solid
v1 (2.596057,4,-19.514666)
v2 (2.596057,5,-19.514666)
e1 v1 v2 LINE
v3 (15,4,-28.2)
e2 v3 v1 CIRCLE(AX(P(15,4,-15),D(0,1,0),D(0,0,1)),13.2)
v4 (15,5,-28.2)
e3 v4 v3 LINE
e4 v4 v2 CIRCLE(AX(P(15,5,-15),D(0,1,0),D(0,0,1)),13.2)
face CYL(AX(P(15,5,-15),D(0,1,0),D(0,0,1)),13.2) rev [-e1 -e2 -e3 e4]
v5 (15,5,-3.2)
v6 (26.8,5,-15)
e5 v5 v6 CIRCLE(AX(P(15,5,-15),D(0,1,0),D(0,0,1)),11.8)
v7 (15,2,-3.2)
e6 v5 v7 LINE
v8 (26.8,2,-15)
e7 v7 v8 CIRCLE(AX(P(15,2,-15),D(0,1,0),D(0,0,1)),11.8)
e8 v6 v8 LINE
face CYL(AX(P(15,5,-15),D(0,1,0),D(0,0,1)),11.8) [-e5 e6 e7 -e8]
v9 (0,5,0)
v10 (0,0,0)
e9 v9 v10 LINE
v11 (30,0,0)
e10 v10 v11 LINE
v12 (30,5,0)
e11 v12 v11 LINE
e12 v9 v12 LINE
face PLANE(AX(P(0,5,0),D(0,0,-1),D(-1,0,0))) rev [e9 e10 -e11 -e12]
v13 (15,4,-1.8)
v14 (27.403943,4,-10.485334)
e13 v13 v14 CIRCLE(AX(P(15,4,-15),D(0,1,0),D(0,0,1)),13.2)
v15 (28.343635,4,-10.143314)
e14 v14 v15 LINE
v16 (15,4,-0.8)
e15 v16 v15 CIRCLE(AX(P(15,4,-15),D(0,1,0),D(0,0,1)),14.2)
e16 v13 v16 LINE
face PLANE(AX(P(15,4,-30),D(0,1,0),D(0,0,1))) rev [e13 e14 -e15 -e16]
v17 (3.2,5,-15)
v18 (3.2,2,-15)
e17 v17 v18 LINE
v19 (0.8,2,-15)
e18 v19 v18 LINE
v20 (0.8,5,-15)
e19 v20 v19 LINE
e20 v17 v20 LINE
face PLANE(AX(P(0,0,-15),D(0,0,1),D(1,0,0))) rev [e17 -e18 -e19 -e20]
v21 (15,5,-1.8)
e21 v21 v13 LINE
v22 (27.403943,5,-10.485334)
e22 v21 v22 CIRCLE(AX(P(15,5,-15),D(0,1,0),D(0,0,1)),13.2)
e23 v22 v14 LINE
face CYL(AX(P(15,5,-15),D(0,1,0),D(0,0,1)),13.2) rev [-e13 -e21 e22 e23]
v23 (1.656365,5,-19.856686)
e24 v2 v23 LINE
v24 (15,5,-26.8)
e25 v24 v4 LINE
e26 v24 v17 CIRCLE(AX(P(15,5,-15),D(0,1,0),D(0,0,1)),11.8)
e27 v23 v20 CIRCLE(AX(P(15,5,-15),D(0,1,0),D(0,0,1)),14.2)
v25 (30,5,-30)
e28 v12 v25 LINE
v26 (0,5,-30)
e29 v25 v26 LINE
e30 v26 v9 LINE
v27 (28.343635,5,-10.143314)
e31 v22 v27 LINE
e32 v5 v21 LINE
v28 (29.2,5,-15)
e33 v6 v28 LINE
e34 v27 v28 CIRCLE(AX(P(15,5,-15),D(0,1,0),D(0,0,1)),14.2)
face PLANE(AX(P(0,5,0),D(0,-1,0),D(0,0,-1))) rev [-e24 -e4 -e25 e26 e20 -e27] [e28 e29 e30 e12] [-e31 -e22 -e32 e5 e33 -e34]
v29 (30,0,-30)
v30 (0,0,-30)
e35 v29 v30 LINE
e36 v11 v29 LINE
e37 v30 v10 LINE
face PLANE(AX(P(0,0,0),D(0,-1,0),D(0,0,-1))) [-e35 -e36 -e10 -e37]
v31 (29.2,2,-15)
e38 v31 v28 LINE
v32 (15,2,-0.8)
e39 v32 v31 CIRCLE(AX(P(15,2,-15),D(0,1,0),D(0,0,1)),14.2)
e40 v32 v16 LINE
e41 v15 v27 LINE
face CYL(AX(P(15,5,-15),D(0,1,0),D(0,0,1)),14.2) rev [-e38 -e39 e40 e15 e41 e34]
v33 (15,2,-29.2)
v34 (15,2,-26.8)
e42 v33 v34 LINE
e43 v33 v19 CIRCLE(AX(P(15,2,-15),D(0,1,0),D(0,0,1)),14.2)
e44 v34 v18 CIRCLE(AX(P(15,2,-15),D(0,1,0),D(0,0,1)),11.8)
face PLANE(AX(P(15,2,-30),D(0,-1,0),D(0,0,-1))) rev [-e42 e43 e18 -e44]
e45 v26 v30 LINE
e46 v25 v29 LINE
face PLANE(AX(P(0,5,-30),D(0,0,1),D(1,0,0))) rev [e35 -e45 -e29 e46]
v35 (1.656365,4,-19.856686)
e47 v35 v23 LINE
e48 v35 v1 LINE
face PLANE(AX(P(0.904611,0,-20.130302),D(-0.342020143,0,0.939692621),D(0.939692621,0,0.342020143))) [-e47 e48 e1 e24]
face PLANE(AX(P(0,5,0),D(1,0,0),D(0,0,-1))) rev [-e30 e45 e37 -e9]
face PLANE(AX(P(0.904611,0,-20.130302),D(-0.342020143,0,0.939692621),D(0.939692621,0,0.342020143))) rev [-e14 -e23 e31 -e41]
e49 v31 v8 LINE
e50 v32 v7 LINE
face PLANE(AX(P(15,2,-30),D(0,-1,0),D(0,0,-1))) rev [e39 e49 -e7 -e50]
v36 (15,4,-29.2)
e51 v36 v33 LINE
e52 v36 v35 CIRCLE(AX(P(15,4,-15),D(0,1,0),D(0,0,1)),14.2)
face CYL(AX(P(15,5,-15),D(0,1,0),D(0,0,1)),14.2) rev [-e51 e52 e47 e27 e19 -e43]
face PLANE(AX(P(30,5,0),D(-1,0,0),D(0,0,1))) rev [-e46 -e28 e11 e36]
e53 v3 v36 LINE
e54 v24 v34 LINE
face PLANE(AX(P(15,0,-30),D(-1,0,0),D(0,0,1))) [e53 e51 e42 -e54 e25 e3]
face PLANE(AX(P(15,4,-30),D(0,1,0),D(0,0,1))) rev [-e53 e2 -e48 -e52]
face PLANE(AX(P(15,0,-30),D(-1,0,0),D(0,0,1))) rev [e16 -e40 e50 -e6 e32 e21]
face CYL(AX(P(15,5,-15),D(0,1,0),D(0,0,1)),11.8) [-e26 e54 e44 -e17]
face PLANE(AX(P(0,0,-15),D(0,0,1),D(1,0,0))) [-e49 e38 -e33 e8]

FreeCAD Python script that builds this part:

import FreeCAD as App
import Part
import Sketcher
Q = App.Units.Quantity

doc = App.newDocument("Part")
body = doc.addObject("PartDesign::Body", "Body")

sketch1 = body.newObject("Sketcher::SketchObject", "Sketch")
sketch1.AttachmentSupport = (doc.getObject("XZ_Plane"), [""])
sketch1.MapMode = "FlatFace"
sketch1.addGeometry(Part.LineSegment(App.Vector(0, -30, 0), App.Vector(0, 0, 0)), False)
sketch1.addGeometry(Part.LineSegment(App.Vector(0, 0, 0), App.Vector(30, 0, 0)), False)
sketch1.addGeometry(Part.LineSegment(App.Vector(30, 0, 0), App.Vector(30, -30, 0)), False)
sketch1.addGeometry(Part.LineSegment(App.Vector(30, -30, 0), App.Vector(0, -30, 0)), False)
sketch1.addConstraint(Sketcher.Constraint("Coincident", 0, 2, 1, 1))
sketch1.addConstraint(Sketcher.Constraint("Coincident", 1, 2, 2, 1))
sketch1.addConstraint(Sketcher.Constraint("Coincident", 2, 2, 3, 1))
sketch1.addConstraint(Sketcher.Constraint("Coincident", 3, 2, 0, 1))
sketch1.addConstraint(Sketcher.Constraint("Vertical", 0))
sketch1.addConstraint(Sketcher.Constraint("Horizontal", 1))
sketch1.addConstraint(Sketcher.Constraint("Vertical", 2))
sketch1.addConstraint(Sketcher.Constraint("Horizontal", 3))
sketch1.addConstraint(Sketcher.Constraint("Coincident", 0, 2, -1, 1))
sketch1.addConstraint(Sketcher.Constraint("Equal", 3, 0))
sketch1.addConstraint(Sketcher.Constraint("DistanceX", 1, 1, 1, 2, Q("30 mm")))
pad1 = body.newObject("PartDesign::Pad", "Pad")
pad1.Profile = sketch1
pad1.Length = 5
pad1.Reversed = True

sketch2 = body.newObject("Sketcher::SketchObject", "Sketch001")
sketch2.AttachmentSupport = (doc.getObject("XY_Plane"), [""])
sketch2.MapMode = "FlatFace"
sketch2.AttachmentOffset = App.Placement(App.Vector(0, 0, -15), App.Rotation())
sketch2.addGeometry(Part.LineSegment(App.Vector(1.8, 4, 0), App.Vector(0.8, 4, 0)), False)
sketch2.addGeometry(Part.LineSegment(App.Vector(0.8, 4, 0), App.Vector(0.8, 2, 0)), False)
sketch2.addGeometry(Part.LineSegment(App.Vector(0.8, 2, 0), App.Vector(3.2, 2, 0)), False)
sketch2.addGeometry(Part.LineSegment(App.Vector(3.2, 2, 0), App.Vector(3.2, 5, 0)), False)
sketch2.addGeometry(Part.LineSegment(App.Vector(3.2, 5, 0), App.Vector(1.8, 5, 0)), False)
sketch2.addGeometry(Part.LineSegment(App.Vector(1.8, 5, 0), App.Vector(1.8, 4, 0)), False)
sketch2.addGeometry(Part.LineSegment(App.Vector(26.8, 2, 0), App.Vector(29.2, 2, 0)), False)
sketch2.addGeometry(Part.LineSegment(App.Vector(29.2, 2, 0), App.Vector(29.2, 4, 0)), False)
sketch2.addGeometry(Part.LineSegment(App.Vector(29.2, 4, 0), App.Vector(28.2, 4, 0)), False)
sketch2.addGeometry(Part.LineSegment(App.Vector(28.2, 4, 0), App.Vector(28.2, 5, 0)), False)
sketch2.addGeometry(Part.LineSegment(App.Vector(28.2, 5, 0), App.Vector(26.8, 5, 0)), False)
sketch2.addGeometry(Part.LineSegment(App.Vector(26.8, 5, 0), App.Vector(26.8, 2, 0)), False)
sketch2.addGeometry(Part.LineSegment(App.Vector(15, 5, 0), App.Vector(15, 2, 0)), True)
sketch2.addConstraint(Sketcher.Constraint("Coincident", 0, 2, 1, 1))
sketch2.addConstraint(Sketcher.Constraint("Coincident", 1, 2, 2, 1))
sketch2.addConstraint(Sketcher.Constraint("Coincident", 2, 2, 3, 1))
sketch2.addConstraint(Sketcher.Constraint("Coincident", 3, 2, 4, 1))
sketch2.addConstraint(Sketcher.Constraint("Coincident", 4, 2, 5, 1))
sketch2.addConstraint(Sketcher.Constraint("Coincident", 5, 2, 0, 1))
sketch2.addConstraint(Sketcher.Constraint("Coincident", 6, 2, 7, 1))
sketch2.addConstraint(Sketcher.Constraint("Coincident", 7, 2, 8, 1))
sketch2.addConstraint(Sketcher.Constraint("Coincident", 8, 2, 9, 1))
sketch2.addConstraint(Sketcher.Constraint("Coincident", 9, 2, 10, 1))
sketch2.addConstraint(Sketcher.Constraint("Coincident", 10, 2, 11, 1))
sketch2.addConstraint(Sketcher.Constraint("Coincident", 11, 2, 6, 1))
sketch2.addConstraint(Sketcher.Constraint("Horizontal", 0))
sketch2.addConstraint(Sketcher.Constraint("Vertical", 1))
sketch2.addConstraint(Sketcher.Constraint("Horizontal", 2))
sketch2.addConstraint(Sketcher.Constraint("Vertical", 3))
sketch2.addConstraint(Sketcher.Constraint("Horizontal", 4))
sketch2.addConstraint(Sketcher.Constraint("Vertical", 5))
sketch2.addConstraint(Sketcher.Constraint("Horizontal", 6))
sketch2.addConstraint(Sketcher.Constraint("Vertical", 7))
sketch2.addConstraint(Sketcher.Constraint("Horizontal", 8))
sketch2.addConstraint(Sketcher.Constraint("Vertical", 9))
sketch2.addConstraint(Sketcher.Constraint("Horizontal", 10))
sketch2.addConstraint(Sketcher.Constraint("Vertical", 11))
sketch2.addConstraint(Sketcher.Constraint("Vertical", 12))
sketch2.addConstraint(Sketcher.Constraint("Horizontal", 2, 2, 6, 2))
sketch2.addConstraint(Sketcher.Constraint("Horizontal", 5, 2, 7, 2))
sketch2.addConstraint(Sketcher.Constraint("Horizontal", 4, 2, 9, 2))
sketch2.addConstraint(Sketcher.Constraint("Horizontal", 10, 2, 12, 1))
sketch2.addConstraint(Sketcher.Constraint("Horizontal", 11, 2, 12, 2))
sketch2.addConstraint(Sketcher.Constraint("Equal", 2, 6))
sketch2.addConstraint(Sketcher.Constraint("Equal", 0, 8))
sketch2.addConstraint(Sketcher.Constraint("Equal", 8, 5))
sketch2.addConstraint(Sketcher.Constraint("DistanceX", 0, 2, 0, 1, Q("1 mm")))
sketch2.addConstraint(Sketcher.Constraint("DistanceY", 1, 2, 1, 1, Q("2 mm")))
sketch2.addConstraint(Sketcher.Constraint("DistanceX", 2, 1, 2, 2, Q("2.4 mm")))
sketch2.addConstraint(Sketcher.Constraint("DistanceY", -1, 1, 0, 2, Q("4 mm")))
sketch2.addConstraint(Sketcher.Constraint("DistanceX", -1, 1, 12, 1, Q("15 mm")))
sketch2.addConstraint(Sketcher.Constraint("DistanceX", 2, 2, 6, 2, Q("26 mm")))
sketch2.addConstraint(Sketcher.Constraint("DistanceX", -1, 1, 0, 2, Q("0.8 mm")))
groove = body.newObject("PartDesign::Groove", "Groove")
groove.Profile = sketch2
groove.ReferenceAxis = (sketch2, ["Axis0"])
groove.Angle = 90

sketch3 = body.newObject("Sketcher::SketchObject", "Sketch002")
sketch3.AttachmentSupport = (doc.getObject("XY_Plane"), [""])
sketch3.MapMode = "FlatFace"
sketch3.AttachmentOffset = App.Placement(App.Vector(0, 0, -15), App.Rotation())
sketch3.addGeometry(Part.LineSegment(App.Vector(0.8, 5, 0), App.Vector(0.8, 2, 0)), False)
sketch3.addGeometry(Part.LineSegment(App.Vector(0.8, 2, 0), App.Vector(3.2, 2, 0)), False)
sketch3.addGeometry(Part.LineSegment(App.Vector(3.2, 2, 0), App.Vector(3.2, 5, 0)), False)
sketch3.addGeometry(Part.LineSegment(App.Vector(3.2, 5, 0), App.Vector(0.8, 5, 0)), False)
sketch3.addGeometry(Part.LineSegment(App.Vector(26.8, 5, 0), App.Vector(26.8, 2, 0)), False)
sketch3.addGeometry(Part.LineSegment(App.Vector(26.8, 2, 0), App.Vector(29.2, 2, 0)), False)
sketch3.addGeometry(Part.LineSegment(App.Vector(29.2, 2, 0), App.Vector(29.2, 5, 0)), False)
sketch3.addGeometry(Part.LineSegment(App.Vector(29.2, 5, 0), App.Vector(26.8, 5, 0)), False)
sketch3.addGeometry(Part.LineSegment(App.Vector(15, 5, 0), App.Vector(15, 2, 0)), True)
sketch3.addConstraint(Sketcher.Constraint("Coincident", 0, 2, 1, 1))
sketch3.addConstraint(Sketcher.Constraint("Coincident", 1, 2, 2, 1))
sketch3.addConstraint(Sketcher.Constraint("Coincident", 2, 2, 3, 1))
sketch3.addConstraint(Sketcher.Constraint("Coincident", 3, 2, 0, 1))
sketch3.addConstraint(Sketcher.Constraint("Coincident", 4, 2, 5, 1))
sketch3.addConstraint(Sketcher.Constraint("Coincident", 5, 2, 6, 1))
sketch3.addConstraint(Sketcher.Constraint("Coincident", 6, 2, 7, 1))
sketch3.addConstraint(Sketcher.Constraint("Coincident", 7, 2, 4, 1))
sketch3.addConstraint(Sketcher.Constraint("Vertical", 0))
sketch3.addConstraint(Sketcher.Constraint("Horizontal", 1))
sketch3.addConstraint(Sketcher.Constraint("Vertical", 2))
sketch3.addConstraint(Sketcher.Constraint("Horizontal", 3))
sketch3.addConstraint(Sketcher.Constraint("Vertical", 4))
sketch3.addConstraint(Sketcher.Constraint("Horizontal", 5))
sketch3.addConstraint(Sketcher.Constraint("Vertical", 6))
sketch3.addConstraint(Sketcher.Constraint("Horizontal", 7))
sketch3.addConstraint(Sketcher.Constraint("Vertical", 8))
sketch3.addConstraint(Sketcher.Constraint("Horizontal", 1, 2, 4, 2))
sketch3.addConstraint(Sketcher.Constraint("Horizontal", 3, 2, 6, 2))
sketch3.addConstraint(Sketcher.Constraint("Horizontal", 7, 2, 8, 1))
sketch3.addConstraint(Sketcher.Constraint("Horizontal", 5, 2, 8, 2))
sketch3.addConstraint(Sketcher.Constraint("Equal", 3, 5))
sketch3.addConstraint(Sketcher.Constraint("DistanceY", 0, 2, 0, 1, Q("3 mm")))
sketch3.addConstraint(Sketcher.Constraint("DistanceX", 1, 1, 1, 2, Q("2.4 mm")))
sketch3.addConstraint(Sketcher.Constraint("DistanceY", -1, 1, 0, 2, Q("2 mm")))
sketch3.addConstraint(Sketcher.Constraint("DistanceX", -1, 1, 8, 1, Q("15 mm")))
sketch3.addConstraint(Sketcher.Constraint("DistanceX", 0, 2, 4, 2, Q("26 mm")))
sketch3.addConstraint(Sketcher.Constraint("DistanceX", -1, 1, 0, 2, Q("0.8 mm")))
groove2 = body.newObject("PartDesign::Groove", "Groove001")
groove2.Profile = sketch3
groove2.ReferenceAxis = (sketch3, ["Axis0"])
groove2.Angle = 20

doc.recompute()
